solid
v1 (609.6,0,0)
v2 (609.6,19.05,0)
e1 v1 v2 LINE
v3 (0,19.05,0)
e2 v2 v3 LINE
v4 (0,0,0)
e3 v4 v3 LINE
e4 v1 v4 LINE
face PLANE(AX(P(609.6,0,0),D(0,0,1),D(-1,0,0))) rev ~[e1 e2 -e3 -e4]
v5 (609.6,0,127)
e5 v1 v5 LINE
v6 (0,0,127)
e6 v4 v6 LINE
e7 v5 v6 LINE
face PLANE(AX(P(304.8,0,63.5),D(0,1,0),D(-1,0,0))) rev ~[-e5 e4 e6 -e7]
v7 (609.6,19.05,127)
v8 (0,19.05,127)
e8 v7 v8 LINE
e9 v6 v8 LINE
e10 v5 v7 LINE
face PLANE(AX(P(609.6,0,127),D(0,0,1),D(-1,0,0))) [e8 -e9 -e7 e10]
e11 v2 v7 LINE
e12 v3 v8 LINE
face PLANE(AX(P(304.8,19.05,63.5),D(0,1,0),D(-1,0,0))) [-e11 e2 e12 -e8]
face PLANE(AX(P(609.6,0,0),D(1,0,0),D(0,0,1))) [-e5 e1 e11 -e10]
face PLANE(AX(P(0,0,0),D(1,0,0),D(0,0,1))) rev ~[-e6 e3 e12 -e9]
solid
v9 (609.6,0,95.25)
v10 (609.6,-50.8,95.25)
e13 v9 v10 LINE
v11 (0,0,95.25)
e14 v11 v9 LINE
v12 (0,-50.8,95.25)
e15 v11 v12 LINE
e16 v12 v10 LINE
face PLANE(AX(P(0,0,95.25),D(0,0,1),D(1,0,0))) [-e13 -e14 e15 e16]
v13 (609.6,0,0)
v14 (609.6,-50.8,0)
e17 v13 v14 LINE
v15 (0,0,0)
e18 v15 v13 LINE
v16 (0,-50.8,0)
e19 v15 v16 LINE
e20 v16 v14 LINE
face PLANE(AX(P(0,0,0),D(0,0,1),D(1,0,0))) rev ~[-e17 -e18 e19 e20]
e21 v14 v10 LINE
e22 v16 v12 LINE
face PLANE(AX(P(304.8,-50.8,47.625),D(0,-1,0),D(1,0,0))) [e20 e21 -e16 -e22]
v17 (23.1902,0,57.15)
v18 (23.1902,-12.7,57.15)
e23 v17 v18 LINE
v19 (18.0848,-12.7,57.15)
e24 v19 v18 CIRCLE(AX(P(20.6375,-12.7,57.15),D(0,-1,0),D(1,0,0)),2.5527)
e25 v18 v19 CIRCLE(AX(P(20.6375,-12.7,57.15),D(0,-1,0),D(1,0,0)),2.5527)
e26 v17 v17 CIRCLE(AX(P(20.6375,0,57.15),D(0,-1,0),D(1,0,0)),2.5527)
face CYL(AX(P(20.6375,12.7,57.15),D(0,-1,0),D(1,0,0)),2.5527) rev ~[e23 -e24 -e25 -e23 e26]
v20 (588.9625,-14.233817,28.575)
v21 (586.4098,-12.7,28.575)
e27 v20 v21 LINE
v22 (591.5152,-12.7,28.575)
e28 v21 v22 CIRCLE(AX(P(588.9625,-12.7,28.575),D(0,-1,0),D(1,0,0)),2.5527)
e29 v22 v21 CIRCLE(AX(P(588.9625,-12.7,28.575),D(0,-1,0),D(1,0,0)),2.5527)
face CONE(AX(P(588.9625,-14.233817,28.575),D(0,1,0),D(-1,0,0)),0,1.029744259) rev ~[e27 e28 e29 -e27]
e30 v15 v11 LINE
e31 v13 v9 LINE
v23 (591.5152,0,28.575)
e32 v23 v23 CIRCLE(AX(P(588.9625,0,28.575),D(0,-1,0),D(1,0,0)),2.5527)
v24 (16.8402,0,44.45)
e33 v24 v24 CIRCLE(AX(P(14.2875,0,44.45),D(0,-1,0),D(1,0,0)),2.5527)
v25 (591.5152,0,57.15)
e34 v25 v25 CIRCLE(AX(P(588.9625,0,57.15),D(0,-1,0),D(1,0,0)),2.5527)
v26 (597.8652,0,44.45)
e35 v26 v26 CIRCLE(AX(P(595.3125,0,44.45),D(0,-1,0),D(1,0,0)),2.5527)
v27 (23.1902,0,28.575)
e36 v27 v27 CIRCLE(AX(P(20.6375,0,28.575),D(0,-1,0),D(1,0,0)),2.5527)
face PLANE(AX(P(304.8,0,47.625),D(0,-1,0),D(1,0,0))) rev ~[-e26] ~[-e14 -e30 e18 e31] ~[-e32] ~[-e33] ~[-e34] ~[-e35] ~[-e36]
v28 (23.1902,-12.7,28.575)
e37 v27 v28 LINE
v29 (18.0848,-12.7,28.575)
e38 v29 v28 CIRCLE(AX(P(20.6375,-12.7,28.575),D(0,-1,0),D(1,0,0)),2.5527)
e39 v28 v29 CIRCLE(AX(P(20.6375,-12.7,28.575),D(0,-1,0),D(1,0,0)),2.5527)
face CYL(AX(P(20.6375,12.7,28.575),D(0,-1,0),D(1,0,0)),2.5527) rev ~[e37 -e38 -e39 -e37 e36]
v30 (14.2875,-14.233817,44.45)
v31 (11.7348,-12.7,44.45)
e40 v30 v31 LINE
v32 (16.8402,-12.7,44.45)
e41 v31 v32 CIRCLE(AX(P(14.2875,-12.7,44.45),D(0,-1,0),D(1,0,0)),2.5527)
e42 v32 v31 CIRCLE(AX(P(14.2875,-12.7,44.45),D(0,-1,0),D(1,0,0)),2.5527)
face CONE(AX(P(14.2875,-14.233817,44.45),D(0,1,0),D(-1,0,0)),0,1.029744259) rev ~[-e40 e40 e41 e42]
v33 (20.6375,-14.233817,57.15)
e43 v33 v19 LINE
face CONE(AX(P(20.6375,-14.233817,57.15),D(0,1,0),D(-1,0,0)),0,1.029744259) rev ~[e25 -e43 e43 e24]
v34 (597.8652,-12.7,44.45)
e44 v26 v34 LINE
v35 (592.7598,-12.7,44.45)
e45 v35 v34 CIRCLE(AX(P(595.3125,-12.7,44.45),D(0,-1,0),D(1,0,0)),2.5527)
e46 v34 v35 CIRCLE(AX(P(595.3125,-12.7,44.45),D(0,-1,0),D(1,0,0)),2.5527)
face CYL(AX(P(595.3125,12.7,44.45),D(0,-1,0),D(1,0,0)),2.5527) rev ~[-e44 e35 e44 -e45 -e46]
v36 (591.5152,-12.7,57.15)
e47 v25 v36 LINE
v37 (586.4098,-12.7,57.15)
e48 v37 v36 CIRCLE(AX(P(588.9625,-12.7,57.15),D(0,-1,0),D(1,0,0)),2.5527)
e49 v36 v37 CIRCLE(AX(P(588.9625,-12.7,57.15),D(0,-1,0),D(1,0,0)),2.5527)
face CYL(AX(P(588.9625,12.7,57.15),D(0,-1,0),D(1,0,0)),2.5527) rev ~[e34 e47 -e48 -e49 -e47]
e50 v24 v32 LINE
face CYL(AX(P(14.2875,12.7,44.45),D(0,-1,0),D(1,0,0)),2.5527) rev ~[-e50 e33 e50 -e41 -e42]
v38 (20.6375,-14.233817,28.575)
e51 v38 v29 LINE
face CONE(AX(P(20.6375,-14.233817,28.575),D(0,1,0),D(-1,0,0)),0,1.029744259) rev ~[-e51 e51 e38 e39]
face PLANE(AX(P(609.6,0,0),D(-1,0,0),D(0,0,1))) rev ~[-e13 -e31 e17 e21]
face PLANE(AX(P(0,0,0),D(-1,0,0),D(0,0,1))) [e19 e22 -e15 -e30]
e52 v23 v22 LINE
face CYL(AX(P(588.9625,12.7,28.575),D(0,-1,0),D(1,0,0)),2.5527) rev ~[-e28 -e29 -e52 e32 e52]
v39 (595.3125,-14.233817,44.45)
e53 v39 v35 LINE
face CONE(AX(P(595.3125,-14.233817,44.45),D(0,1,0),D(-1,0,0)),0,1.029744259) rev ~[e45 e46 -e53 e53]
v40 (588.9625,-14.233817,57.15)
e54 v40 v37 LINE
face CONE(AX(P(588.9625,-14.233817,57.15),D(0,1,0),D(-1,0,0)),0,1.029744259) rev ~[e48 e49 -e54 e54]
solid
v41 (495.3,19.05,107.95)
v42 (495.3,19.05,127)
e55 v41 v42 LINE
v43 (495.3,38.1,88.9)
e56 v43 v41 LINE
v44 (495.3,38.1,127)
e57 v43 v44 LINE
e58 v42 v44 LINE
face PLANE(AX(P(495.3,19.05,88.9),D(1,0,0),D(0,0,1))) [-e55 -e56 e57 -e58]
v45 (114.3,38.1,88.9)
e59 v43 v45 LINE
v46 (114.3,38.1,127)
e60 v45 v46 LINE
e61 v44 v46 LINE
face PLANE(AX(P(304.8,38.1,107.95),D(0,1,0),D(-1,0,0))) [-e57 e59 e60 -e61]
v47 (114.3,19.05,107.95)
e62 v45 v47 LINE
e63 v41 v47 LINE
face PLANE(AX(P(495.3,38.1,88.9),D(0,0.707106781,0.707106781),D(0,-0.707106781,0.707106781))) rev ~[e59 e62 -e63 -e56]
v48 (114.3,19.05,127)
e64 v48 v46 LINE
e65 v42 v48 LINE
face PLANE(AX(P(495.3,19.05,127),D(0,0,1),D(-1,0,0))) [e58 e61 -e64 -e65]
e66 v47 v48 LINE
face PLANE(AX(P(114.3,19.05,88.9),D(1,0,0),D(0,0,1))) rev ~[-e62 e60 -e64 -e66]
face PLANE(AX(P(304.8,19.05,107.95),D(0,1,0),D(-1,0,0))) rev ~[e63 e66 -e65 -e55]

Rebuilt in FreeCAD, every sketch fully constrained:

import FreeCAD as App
import Part
import Sketcher

V = App.Vector
Q = App.Units.Quantity

doc = App.newDocument("Part")
body = doc.addObject("PartDesign::Body", "Body")

sketch1 = doc.addObject("Sketcher::SketchObject", "Sketch")
body.addObject(sketch1)
sketch1.AttachmentSupport = (doc.XZ_Plane, [""])
sketch1.MapMode = "FlatFace"
sketch1.addGeometry(Part.LineSegment(V(0, 95.25, 0), V(0, 0, 0)), False)
sketch1.addGeometry(Part.LineSegment(V(0, 0, 0), V(609.6, 0, 0)), False)
sketch1.addGeometry(Part.LineSegment(V(609.6, 0, 0), V(609.6, 95.25, 0)), False)
sketch1.addGeometry(Part.LineSegment(V(609.6, 95.25, 0), V(0, 95.25, 0)), False)
sketch1.addConstraint(Sketcher.Constraint("Coincident", 0, 2, 1, 1))
sketch1.addConstraint(Sketcher.Constraint("Coincident", 1, 2, 2, 1))
sketch1.addConstraint(Sketcher.Constraint("Coincident", 2, 2, 3, 1))
sketch1.addConstraint(Sketcher.Constraint("Coincident", 3, 2, 0, 1))
sketch1.addConstraint(Sketcher.Constraint("Vertical", 0))
sketch1.addConstraint(Sketcher.Constraint("Horizontal", 1))
sketch1.addConstraint(Sketcher.Constraint("Vertical", 2))
sketch1.addConstraint(Sketcher.Constraint("Horizontal", 3))
sketch1.addConstraint(Sketcher.Constraint("Coincident", 0, 2, -1, 1))
sketch1.addConstraint(Sketcher.Constraint("DistanceX", 1, 1, 1, 2, Q("24 in")))
sketch1.addConstraint(Sketcher.Constraint("DistanceY", 0, 2, 0, 1, Q("3.75 in")))
pad1 = doc.addObject("PartDesign::Pad", "Pad")
body.addObject(pad1)
pad1.Profile = sketch1
pad1.Length = Q("2 in")

sketch2 = doc.addObject("Sketcher::SketchObject", "Sketch001")
body.addObject(sketch2)
sketch2.AttachmentSupport = (doc.XZ_Plane, [""])
sketch2.MapMode = "FlatFace"
sketch2.addGeometry(Part.Circle(V(588.9625, 28.575, 0), V(0, 0, 1), 2.5527), False)
sketch2.addGeometry(Part.Circle(V(595.3125, 44.45, 0), V(0, 0, 1), 2.5527), False)
sketch2.addGeometry(Part.Circle(V(588.9625, 57.15, 0), V(0, 0, 1), 2.5527), False)
sketch2.addGeometry(Part.Circle(V(20.6375, 28.575, 0), V(0, 0, 1), 2.5527), False)
sketch2.addGeometry(Part.Circle(V(14.2875, 44.45, 0), V(0, 0, 1), 2.5527), False)
sketch2.addGeometry(Part.Circle(V(20.6375, 57.15, 0), V(0, 0, 1), 2.5527), False)
sketch2.addConstraint(Sketcher.Constraint("Equal", 0, 1))
sketch2.addConstraint(Sketcher.Constraint("Equal", 1, 2))
sketch2.addConstraint(Sketcher.Constraint("Equal", 2, 3))
sketch2.addConstraint(Sketcher.Constraint("Equal", 3, 4))
sketch2.addConstraint(Sketcher.Constraint("Equal", 4, 5))
sketch2.addConstraint(Sketcher.Constraint("Horizontal", 0, 3, 3, 3))
sketch2.addConstraint(Sketcher.Constraint("Horizontal", 1, 3, 4, 3))
sketch2.addConstraint(Sketcher.Constraint("Horizontal", 2, 3, 5, 3))
sketch2.addConstraint(Sketcher.Constraint("Vertical", 0, 3, 2, 3))
sketch2.addConstraint(Sketcher.Constraint("Vertical", 3, 3, 5, 3))
sketch2.addConstraint(Sketcher.Constraint("Diameter", 0, Q("0.201 in")))
sketch2.addConstraint(Sketcher.Constraint("DistanceY", 1, 3, 2, 3, Q("0.5 in")))
sketch2.addConstraint(Sketcher.Constraint("DistanceY", -1, 1, 1, 3, Q("1.75 in")))
sketch2.addConstraint(Sketcher.Constraint("DistanceX", 0, 3, 1, 3, Q("0.25 in")))
sketch2.addConstraint(Sketcher.Constraint("DistanceX", 4, 3, 3, 3, Q("0.25 in")))
sketch2.addConstraint(Sketcher.Constraint("DistanceX", -1, 1, 0, 3, Q("23.1875 in")))
sketch2.addConstraint(Sketcher.Constraint("DistanceY", -1, 1, 0, 3, Q("1.125 in")))
sketch2.addConstraint(Sketcher.Constraint("DistanceX", -1, 1, 3, 3, Q("0.8125 in")))
doc.recompute()
hole = doc.addObject("PartDesign::Hole", "Hole")
body.addObject(hole)
hole.Profile = sketch2
hole.ThreadType = "None"
hole.Diameter = Q("0.201 in")
hole.DepthType = "Dimension"
hole.Depth = Q("0.5 in")
hole.DrillPoint = "Angled"
hole.DrillPointAngle = 118
hole.Reversed = True
body2 = doc.addObject("PartDesign::Body", "Body001")

sketch3 = doc.addObject("Sketcher::SketchObject", "Sketch002")
body2.addObject(sketch3)
sketch3.AttachmentSupport = (doc.getObject("XZ_Plane001"), [""])
sketch3.MapMode = "FlatFace"
sketch3.addGeometry(Part.LineSegment(V(609.6, 127, 0), V(609.6, 0, 0)), False)
sketch3.addGeometry(Part.LineSegment(V(609.6, 0, 0), V(0, 0, 0)), False)
sketch3.addGeometry(Part.LineSegment(V(0, 0, 0), V(0, 127, 0)), False)
sketch3.addGeometry(Part.LineSegment(V(0, 127, 0), V(609.6, 127, 0)), False)
sketch3.addConstraint(Sketcher.Constraint("Coincident", 0, 2, 1, 1))
sketch3.addConstraint(Sketcher.Constraint("Coincident", 1, 2, 2, 1))
sketch3.addConstraint(Sketcher.Constraint("Coincident", 2, 2, 3, 1))
sketch3.addConstraint(Sketcher.Constraint("Coincident", 3, 2, 0, 1))
sketch3.addConstraint(Sketcher.Constraint("Vertical", 0))
sketch3.addConstraint(Sketcher.Constraint("Horizontal", 1))
sketch3.addConstraint(Sketcher.Constraint("Vertical", 2))
sketch3.addConstraint(Sketcher.Constraint("Horizontal", 3))
sketch3.addConstraint(Sketcher.Constraint("Coincident", 1, 2, -1, 1))
sketch3.addConstraint(Sketcher.Constraint("DistanceX", 1, 2, 1, 1, Q("24 in")))
sketch3.addConstraint(Sketcher.Constraint("DistanceY", 0, 2, 0, 1, Q("5 in")))
pad2 = doc.addObject("PartDesign::Pad", "Pad001")
body2.addObject(pad2)
pad2.Profile = sketch3
pad2.Length = Q("0.75 in")
pad2.Reversed = True
body3 = doc.addObject("PartDesign::Body", "Body002")

sketch4 = doc.addObject("Sketcher::SketchObject", "Sketch003")
body3.addObject(sketch4)
sketch4.AttachmentSupport = (doc.getObject("XZ_Plane002"), [""])
sketch4.MapMode = "FlatFace"
sketch4.AttachmentOffset = App.Placement(V(0, 0, -0.75 * 25.4), App.Rotation())
sketch4.addGeometry(Part.LineSegment(V(495.3, 127, 0), V(495.3, 88.9, 0)), False)
sketch4.addGeometry(Part.LineSegment(V(495.3, 88.9, 0), V(114.3, 88.9, 0)), False)
sketch4.addGeometry(Part.LineSegment(V(114.3, 88.9, 0), V(114.3, 127, 0)), False)
sketch4.addGeometry(Part.LineSegment(V(114.3, 127, 0), V(495.3, 127, 0)), False)
sketch4.addConstraint(Sketcher.Constraint("Coincident", 0, 2, 1, 1))
sketch4.addConstraint(Sketcher.Constraint("Coincident", 1, 2, 2, 1))
sketch4.addConstraint(Sketcher.Constraint("Coincident", 2, 2, 3, 1))
sketch4.addConstraint(Sketcher.Constraint("Coincident", 3, 2, 0, 1))
sketch4.addConstraint(Sketcher.Constraint("Vertical", 0))
sketch4.addConstraint(Sketcher.Constraint("Horizontal", 1))
sketch4.addConstraint(Sketcher.Constraint("Vertical", 2))
sketch4.addConstraint(Sketcher.Constraint("Horizontal", 3))
sketch4.addConstraint(Sketcher.Constraint("DistanceX", 1, 2, 1, 1, Q("15 in")))
sketch4.addConstraint(Sketcher.Constraint("DistanceY", 0, 2, 0, 1, Q("1.5 in")))
sketch4.addConstraint(Sketcher.Constraint("DistanceY", -1, 1, 2, 2, Q("5 in")))
sketch4.addConstraint(Sketcher.Constraint("DistanceX", -1, 1, 0, 2, Q("19.5 in")))
pad3 = doc.addObject("PartDesign::Pad", "Pad002")
body3.addObject(pad3)
pad3.Profile = sketch4
pad3.Length = Q("0.75 in")
pad3.Reversed = True

sketch5 = doc.addObject("Sketcher::SketchObject", "Sketch004")
body3.addObject(sketch5)
sketch5.AttachmentSupport = (doc.getObject("YZ_Plane002"), [""])
sketch5.MapMode = "FlatFace"
sketch5.AttachmentOffset = App.Placement(V(0, 0, 19.5 * 25.4), App.Rotation())
sketch5.addGeometry(Part.LineSegment(V(19.05, 88.9, 0), V(38.1, 88.9, 0)), False)
sketch5.addGeometry(Part.LineSegment(V(38.1, 88.9, 0), V(19.05, 107.95, 0)), False)
sketch5.addGeometry(Part.LineSegment(V(19.05, 107.95, 0), V(19.05, 88.9, 0)), False)
sketch5.addConstraint(Sketcher.Constraint("Coincident", 0, 2, 1, 1))
sketch5.addConstraint(Sketcher.Constraint("Coincident", 1, 2, 2, 1))
sketch5.addConstraint(Sketcher.Constraint("Coincident", 2, 2, 0, 1))
sketch5.addConstraint(Sketcher.Constraint("Horizontal", 0))
sketch5.addConstraint(Sketcher.Constraint("Vertical", 2))
sketch5.addConstraint(Sketcher.Constraint("Equal", 0, 2))
sketch5.addConstraint(Sketcher.Constraint("DistanceX", 0, 1, 0, 2, Q("0.75 in")))
sketch5.addConstraint(Sketcher.Constraint("DistanceX", -1, 1, 0, 2, Q("1.5 in")))
sketch5.addConstraint(Sketcher.Constraint("DistanceY", -1, 1, 0, 2, Q("3.5 in")))
pocket1 = doc.addObject("PartDesign::Pocket", "Pocket")
body3.addObject(pocket1)
pocket1.Profile = sketch5
pocket1.Type = "ThroughAll"

doc.recompute()
